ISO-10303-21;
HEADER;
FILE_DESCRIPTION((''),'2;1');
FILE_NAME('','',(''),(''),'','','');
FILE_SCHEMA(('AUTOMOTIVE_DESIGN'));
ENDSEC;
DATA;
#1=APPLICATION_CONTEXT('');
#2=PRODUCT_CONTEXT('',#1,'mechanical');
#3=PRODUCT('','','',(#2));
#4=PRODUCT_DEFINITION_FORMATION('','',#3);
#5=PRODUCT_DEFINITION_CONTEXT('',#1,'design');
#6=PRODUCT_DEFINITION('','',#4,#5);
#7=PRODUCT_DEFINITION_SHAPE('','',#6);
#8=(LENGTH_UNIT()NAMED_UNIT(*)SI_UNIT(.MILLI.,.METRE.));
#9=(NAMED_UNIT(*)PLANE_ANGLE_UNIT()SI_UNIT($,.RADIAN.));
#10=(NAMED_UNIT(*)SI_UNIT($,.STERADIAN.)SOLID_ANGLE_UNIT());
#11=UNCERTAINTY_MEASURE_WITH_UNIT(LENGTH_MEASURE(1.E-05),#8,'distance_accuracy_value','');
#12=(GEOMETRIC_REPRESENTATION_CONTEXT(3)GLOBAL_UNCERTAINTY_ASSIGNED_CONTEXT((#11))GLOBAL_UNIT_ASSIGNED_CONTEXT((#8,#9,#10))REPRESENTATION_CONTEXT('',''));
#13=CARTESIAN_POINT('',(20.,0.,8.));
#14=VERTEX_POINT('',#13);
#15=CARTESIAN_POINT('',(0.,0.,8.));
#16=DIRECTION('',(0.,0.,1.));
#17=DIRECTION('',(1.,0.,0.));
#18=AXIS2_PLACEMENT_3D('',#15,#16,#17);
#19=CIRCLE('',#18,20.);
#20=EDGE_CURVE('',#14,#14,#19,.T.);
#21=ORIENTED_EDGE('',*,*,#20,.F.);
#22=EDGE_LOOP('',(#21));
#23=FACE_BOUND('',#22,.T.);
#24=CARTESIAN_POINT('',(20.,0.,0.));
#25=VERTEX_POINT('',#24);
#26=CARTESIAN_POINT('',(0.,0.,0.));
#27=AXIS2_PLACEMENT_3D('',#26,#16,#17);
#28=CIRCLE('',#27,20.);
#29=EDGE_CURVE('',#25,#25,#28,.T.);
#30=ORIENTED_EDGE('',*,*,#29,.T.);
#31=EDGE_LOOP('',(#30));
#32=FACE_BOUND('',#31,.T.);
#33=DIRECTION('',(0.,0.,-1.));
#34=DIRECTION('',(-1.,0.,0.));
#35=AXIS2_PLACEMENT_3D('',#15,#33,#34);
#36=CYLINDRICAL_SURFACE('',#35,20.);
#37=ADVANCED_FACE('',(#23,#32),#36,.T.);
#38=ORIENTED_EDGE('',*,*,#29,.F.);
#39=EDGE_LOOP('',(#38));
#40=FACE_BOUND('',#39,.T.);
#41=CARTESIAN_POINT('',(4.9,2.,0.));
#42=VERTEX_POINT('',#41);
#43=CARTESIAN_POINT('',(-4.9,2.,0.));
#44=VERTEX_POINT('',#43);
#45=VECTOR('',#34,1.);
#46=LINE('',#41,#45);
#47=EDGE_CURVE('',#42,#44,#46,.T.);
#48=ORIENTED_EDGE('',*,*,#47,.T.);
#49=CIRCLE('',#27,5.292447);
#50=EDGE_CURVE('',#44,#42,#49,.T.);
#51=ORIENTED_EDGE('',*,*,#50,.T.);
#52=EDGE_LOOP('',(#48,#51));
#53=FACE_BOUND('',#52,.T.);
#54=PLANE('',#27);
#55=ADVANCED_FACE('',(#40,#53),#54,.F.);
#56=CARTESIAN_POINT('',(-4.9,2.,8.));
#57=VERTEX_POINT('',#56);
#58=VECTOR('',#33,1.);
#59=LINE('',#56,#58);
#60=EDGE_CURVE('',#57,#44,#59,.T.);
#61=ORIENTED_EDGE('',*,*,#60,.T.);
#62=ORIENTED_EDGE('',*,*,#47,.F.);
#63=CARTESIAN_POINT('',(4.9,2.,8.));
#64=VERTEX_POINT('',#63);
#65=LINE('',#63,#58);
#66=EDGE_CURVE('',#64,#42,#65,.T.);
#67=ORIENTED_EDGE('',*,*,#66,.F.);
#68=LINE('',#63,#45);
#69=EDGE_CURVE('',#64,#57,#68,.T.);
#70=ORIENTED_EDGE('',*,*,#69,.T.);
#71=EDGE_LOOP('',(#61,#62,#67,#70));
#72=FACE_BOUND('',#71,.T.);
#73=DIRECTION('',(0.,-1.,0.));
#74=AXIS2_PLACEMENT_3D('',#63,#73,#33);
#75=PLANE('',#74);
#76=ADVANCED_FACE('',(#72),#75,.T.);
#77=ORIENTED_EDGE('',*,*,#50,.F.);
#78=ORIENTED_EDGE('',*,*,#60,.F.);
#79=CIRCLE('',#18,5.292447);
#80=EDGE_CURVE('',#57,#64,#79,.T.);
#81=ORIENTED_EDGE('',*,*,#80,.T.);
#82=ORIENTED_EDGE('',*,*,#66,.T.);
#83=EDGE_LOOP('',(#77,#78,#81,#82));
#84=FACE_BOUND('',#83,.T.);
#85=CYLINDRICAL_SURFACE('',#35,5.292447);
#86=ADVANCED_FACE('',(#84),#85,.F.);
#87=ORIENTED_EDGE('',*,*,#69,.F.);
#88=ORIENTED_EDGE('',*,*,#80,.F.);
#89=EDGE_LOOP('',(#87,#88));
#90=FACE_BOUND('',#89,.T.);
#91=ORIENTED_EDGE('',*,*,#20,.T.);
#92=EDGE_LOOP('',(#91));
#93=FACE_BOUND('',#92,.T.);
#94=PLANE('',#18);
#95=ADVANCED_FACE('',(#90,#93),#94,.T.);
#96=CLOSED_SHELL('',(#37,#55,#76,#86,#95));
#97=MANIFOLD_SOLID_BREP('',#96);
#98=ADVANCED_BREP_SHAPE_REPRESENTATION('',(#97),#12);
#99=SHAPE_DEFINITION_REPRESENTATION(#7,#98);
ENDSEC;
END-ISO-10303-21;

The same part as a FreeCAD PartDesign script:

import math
import FreeCAD as App
import Part
import Sketcher

V = App.Vector

doc = App.newDocument("Part")
body = doc.addObject("PartDesign::Body", "Body")

# Sketch on XY plane
sketch1 = doc.addObject("Sketcher::SketchObject", "Sketch")
body.addObject(sketch1)
sketch1.AttachmentSupport = (doc.XY_Plane, [""])
sketch1.MapMode = "FlatFace"
sketch1.addGeometry(Part.Circle(V(0, 0, 0), V(0, 0, 1), 20), False)
sketch1.addGeometry(Part.LineSegment(V(-4.9, 2, 0), V(4.9, 2, 0)), False)
sketch1.addGeometry(Part.ArcOfCircle(Part.Circle(V(0, 0, 0), V(0, 0, 1), 5.292447), math.radians(157.796521), math.radians(382.203479)), False)
sketch1.addConstraint(Sketcher.Constraint("Coincident", 1, 1, 2, 1))
sketch1.addConstraint(Sketcher.Constraint("Coincident", 2, 2, 1, 2))
sketch1.addConstraint(Sketcher.Constraint("Horizontal", 1))
sketch1.addConstraint(Sketcher.Constraint("Coincident", 0, 3, -1, 1))
sketch1.addConstraint(Sketcher.Constraint("Coincident", 2, 3, -1, 1))
sketch1.addConstraint(Sketcher.Constraint("Diameter", 0, 40.0))
sketch1.addConstraint(Sketcher.Constraint("DistanceX", 1, 1, 1, 2, 9.8))
sketch1.addConstraint(Sketcher.Constraint("DistanceY", -1, 1, 1, 1, 2.0))
pad1 = doc.addObject("PartDesign::Pad", "Pad")
body.addObject(pad1)
pad1.Profile = sketch1
pad1.Length = 8

doc.recompute()
